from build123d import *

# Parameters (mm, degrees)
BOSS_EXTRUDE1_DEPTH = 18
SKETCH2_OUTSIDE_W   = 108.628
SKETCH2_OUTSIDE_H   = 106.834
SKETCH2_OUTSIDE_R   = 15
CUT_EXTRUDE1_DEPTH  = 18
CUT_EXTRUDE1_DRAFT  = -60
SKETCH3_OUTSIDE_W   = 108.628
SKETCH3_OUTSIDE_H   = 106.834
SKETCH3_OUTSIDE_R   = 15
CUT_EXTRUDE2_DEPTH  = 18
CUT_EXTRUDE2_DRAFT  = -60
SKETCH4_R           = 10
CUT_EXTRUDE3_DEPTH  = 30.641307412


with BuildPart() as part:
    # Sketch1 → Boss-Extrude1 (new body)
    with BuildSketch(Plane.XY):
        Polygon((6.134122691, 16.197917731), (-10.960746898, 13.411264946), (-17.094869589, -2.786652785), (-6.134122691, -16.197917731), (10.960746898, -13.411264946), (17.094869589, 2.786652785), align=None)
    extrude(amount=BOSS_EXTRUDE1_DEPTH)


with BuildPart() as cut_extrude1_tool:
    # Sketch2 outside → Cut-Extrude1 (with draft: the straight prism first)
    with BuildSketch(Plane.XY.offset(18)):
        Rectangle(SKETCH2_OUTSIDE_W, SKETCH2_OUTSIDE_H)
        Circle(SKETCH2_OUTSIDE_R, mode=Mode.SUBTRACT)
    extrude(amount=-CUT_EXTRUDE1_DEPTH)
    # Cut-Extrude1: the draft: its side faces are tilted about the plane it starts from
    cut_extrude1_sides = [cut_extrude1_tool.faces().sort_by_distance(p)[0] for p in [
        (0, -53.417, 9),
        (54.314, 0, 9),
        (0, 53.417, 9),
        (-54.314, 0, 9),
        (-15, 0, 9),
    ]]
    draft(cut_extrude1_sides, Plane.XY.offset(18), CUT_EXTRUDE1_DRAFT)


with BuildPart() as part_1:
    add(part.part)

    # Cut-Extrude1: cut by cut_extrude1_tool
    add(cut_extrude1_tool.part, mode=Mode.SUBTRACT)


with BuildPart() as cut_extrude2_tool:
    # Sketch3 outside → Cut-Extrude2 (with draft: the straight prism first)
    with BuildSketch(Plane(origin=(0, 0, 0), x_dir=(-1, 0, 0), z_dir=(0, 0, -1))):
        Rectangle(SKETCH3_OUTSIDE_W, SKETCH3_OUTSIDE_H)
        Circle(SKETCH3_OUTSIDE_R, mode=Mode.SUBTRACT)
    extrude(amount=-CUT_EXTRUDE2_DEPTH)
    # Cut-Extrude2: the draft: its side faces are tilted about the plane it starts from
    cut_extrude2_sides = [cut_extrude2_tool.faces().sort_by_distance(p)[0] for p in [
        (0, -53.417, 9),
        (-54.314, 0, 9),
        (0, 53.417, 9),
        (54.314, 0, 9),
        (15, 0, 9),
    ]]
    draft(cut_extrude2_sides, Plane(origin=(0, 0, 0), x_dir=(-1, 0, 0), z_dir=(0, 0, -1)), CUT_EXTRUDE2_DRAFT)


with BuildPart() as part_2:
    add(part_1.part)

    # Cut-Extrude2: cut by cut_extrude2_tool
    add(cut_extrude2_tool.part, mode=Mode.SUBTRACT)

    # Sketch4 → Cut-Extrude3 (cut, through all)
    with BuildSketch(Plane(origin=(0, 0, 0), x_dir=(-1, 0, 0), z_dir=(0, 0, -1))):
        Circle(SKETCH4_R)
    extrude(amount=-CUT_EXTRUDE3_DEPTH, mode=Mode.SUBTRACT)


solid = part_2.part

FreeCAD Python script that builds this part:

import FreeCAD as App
import Part
import Sketcher

V = App.Vector
Q = App.Units.Quantity


def faces_at(feature, points):
    """Names of the faces that lie closest to the given points."""
    faces = feature.Shape.Faces
    near = lambda p: min(range(len(faces)), key=lambda i: faces[i].distToShape(Part.Vertex(*p))[0])
    return sorted({f"Face{near(p) + 1}" for p in points})


def add_polygon(sketch, points):
    """Adds a closed chain of lines whose ends are joined by coincident constraints."""
    first, n = sketch.GeometryCount, len(points)
    for a, b in zip(points, points[1:] + points[:1]):
        sketch.addGeometry(Part.LineSegment(App.Vector(*a, 0), App.Vector(*b, 0)), False)
    for i in range(n):
        sketch.addConstraint(Sketcher.Constraint("Coincident", first + i, 2, first + (i + 1) % n, 1))

doc = App.newDocument("Part")
body = doc.addObject("PartDesign::Body", "Body")

# Sketch on XY plane
sketch1 = body.newObject("Sketcher::SketchObject", "Sketch")
sketch1.AttachmentSupport = (doc.getObject("XY_Plane"), [""])
sketch1.MapMode = "FlatFace"
add_polygon(sketch1, [(6, 16), (-11, 13), (-17, -3), (-6, -16), (11, -13), (17, 3)])  # lines 0-5
sketch1.addConstraint(Sketcher.Constraint("Symmetric", 0, 2, 3, 2, -1, 1))
sketch1.addConstraint(Sketcher.Constraint("Symmetric", 1, 2, 4, 2, -1, 1))
sketch1.addConstraint(Sketcher.Constraint("Symmetric", 2, 2, 5, 2, -1, 1))
sketch1.addConstraint(Sketcher.Constraint("Equal", 0, 1))
sketch1.addConstraint(Sketcher.Constraint("Equal", 1, 2))
sketch1.addConstraint(Sketcher.Constraint("Distance", 0, Q("17.320508 mm")))
sketch1.addConstraint(Sketcher.Constraint("DistanceX", 1, 2, -1, 1, Q("17.09487 mm")))
sketch1.addConstraint(Sketcher.Constraint("DistanceX", 2, 2, 3, 2, Q("17.09487 mm")))
sketch1.addConstraint(Sketcher.Constraint("DistanceY", 3, 2, 0, 2, Q("26.82253 mm")))
pad1 = body.newObject("PartDesign::Pad", "Pad")
pad1.Profile = sketch1
pad1.Length = 18
body2 = doc.addObject("PartDesign::Body", "Body001")

# Sketch on XY plane
sketch2 = body2.newObject("Sketcher::SketchObject", "Sketch001")
sketch2.AttachmentSupport = (doc.getObject("XY_Plane001"), [""])
sketch2.MapMode = "FlatFace"
sketch2.AttachmentOffset = App.Placement(V(0, 0, 18), App.Rotation())
add_polygon(sketch2, [(-54, 53), (-54, -53), (54, -53), (54, 53)])  # lines 0-3
sketch2.addGeometry(Part.Circle(V(0, 0, 0), V(0, 0, 1), 15), False)  # 4
sketch2.addConstraint(Sketcher.Constraint("Vertical", 0))
sketch2.addConstraint(Sketcher.Constraint("Horizontal", 1))
sketch2.addConstraint(Sketcher.Constraint("Vertical", 2))
sketch2.addConstraint(Sketcher.Constraint("Horizontal", 3))
sketch2.addConstraint(Sketcher.Constraint("Coincident", 4, 3, -1, 1))
sketch2.addConstraint(Sketcher.Constraint("Symmetric", 0, 2, 2, 2, -1, 1))
sketch2.addConstraint(Sketcher.Constraint("Diameter", 4, Q("30 mm")))
sketch2.addConstraint(Sketcher.Constraint("DistanceX", 1, 1, 1, 2, Q("108.628 mm")))
sketch2.addConstraint(Sketcher.Constraint("DistanceY", 0, 2, 0, 1, Q("106.834 mm")))
pad2 = body2.newObject("PartDesign::Pad", "Pad001")
pad2.Profile = sketch2
pad2.Length = 18
pad2.Reversed = True
doc.recompute()

datumplane = body2.newObject("PartDesign::Plane", "DatumPlane")
datumplane.AttachmentSupport = (doc.getObject("XY_Plane001"), [""])
datumplane.MapMode = "FlatFace"
datumplane.AttachmentOffset = App.Placement(V(0, 0, 18), App.Rotation())
draft = body2.newObject("PartDesign::Draft", "Draft")
draft.Base = (pad2, faces_at(pad2, [
    (0, -53.417, 9),
    (54.314, 0, 9),
    (0, 53.417, 9),
    (-54.314, 0, 9),
    (-15, 0, 9),
]))
draft.NeutralPlane = (datumplane, [""])
draft.Angle = 60
draft.Reversed = True
doc.recompute()

boolean = body.newObject("PartDesign::Boolean", "Boolean")
boolean.Type = "Cut"
boolean.addObjects([body2])
body3 = doc.addObject("PartDesign::Body", "Body002")

# Sketch on XY plane
sketch3 = body3.newObject("Sketcher::SketchObject", "Sketch002")
sketch3.AttachmentSupport = (doc.getObject("XY_Plane002"), [""])
sketch3.MapMode = "FlatFace"
add_polygon(sketch3, [(54, 53), (54, -53), (-54, -53), (-54, 53)])  # lines 0-3
sketch3.addGeometry(Part.Circle(V(0, 0, 0), V(0, 0, 1), 15), False)  # 4
sketch3.addConstraint(Sketcher.Constraint("Vertical", 0))
sketch3.addConstraint(Sketcher.Constraint("Horizontal", 1))
sketch3.addConstraint(Sketcher.Constraint("Vertical", 2))
sketch3.addConstraint(Sketcher.Constraint("Horizontal", 3))
sketch3.addConstraint(Sketcher.Constraint("Coincident", 4, 3, -1, 1))
sketch3.addConstraint(Sketcher.Constraint("Symmetric", 0, 2, 2, 2, -1, 1))
sketch3.addConstraint(Sketcher.Constraint("Diameter", 4, Q("30 mm")))
sketch3.addConstraint(Sketcher.Constraint("DistanceX", 1, 2, 1, 1, Q("108.628 mm")))
sketch3.addConstraint(Sketcher.Constraint("DistanceY", 0, 2, 0, 1, Q("106.834 mm")))
pad3 = body3.newObject("PartDesign::Pad", "Pad002")
pad3.Profile = sketch3
pad3.Length = 18
doc.recompute()

draft2 = body3.newObject("PartDesign::Draft", "Draft001")
draft2.Base = (pad3, faces_at(pad3, [
    (0, -53.417, 9),
    (-54.314, 0, 9),
    (0, 53.417, 9),
    (54.314, 0, 9),
    (15, 0, 9),
]))
draft2.NeutralPlane = (doc.getObject("XY_Plane002"), [""])
draft2.Angle = 60
draft2.Reversed = False
doc.recompute()

boolean2 = body.newObject("PartDesign::Boolean", "Boolean001")
boolean2.Type = "Cut"
boolean2.addObjects([body3])

# Sketch on XY plane
sketch4 = body.newObject("Sketcher::SketchObject", "Sketch003")
sketch4.AttachmentSupport = (doc.getObject("XY_Plane"), [""])
sketch4.MapMode = "FlatFace"
sketch4.addGeometry(Part.Circle(V(0, 0, 0), V(0, 0, 1), 10), False)
sketch4.addConstraint(Sketcher.Constraint("Coincident", 0, 3, -1, 1))
sketch4.addConstraint(Sketcher.Constraint("Diameter", 0, Q("20 mm")))
pocket1 = body.newObject("PartDesign::Pocket", "Pocket")
pocket1.Profile = sketch4
pocket1.Type = "ThroughAll"
pocket1.Reversed = True

doc.recompute()
